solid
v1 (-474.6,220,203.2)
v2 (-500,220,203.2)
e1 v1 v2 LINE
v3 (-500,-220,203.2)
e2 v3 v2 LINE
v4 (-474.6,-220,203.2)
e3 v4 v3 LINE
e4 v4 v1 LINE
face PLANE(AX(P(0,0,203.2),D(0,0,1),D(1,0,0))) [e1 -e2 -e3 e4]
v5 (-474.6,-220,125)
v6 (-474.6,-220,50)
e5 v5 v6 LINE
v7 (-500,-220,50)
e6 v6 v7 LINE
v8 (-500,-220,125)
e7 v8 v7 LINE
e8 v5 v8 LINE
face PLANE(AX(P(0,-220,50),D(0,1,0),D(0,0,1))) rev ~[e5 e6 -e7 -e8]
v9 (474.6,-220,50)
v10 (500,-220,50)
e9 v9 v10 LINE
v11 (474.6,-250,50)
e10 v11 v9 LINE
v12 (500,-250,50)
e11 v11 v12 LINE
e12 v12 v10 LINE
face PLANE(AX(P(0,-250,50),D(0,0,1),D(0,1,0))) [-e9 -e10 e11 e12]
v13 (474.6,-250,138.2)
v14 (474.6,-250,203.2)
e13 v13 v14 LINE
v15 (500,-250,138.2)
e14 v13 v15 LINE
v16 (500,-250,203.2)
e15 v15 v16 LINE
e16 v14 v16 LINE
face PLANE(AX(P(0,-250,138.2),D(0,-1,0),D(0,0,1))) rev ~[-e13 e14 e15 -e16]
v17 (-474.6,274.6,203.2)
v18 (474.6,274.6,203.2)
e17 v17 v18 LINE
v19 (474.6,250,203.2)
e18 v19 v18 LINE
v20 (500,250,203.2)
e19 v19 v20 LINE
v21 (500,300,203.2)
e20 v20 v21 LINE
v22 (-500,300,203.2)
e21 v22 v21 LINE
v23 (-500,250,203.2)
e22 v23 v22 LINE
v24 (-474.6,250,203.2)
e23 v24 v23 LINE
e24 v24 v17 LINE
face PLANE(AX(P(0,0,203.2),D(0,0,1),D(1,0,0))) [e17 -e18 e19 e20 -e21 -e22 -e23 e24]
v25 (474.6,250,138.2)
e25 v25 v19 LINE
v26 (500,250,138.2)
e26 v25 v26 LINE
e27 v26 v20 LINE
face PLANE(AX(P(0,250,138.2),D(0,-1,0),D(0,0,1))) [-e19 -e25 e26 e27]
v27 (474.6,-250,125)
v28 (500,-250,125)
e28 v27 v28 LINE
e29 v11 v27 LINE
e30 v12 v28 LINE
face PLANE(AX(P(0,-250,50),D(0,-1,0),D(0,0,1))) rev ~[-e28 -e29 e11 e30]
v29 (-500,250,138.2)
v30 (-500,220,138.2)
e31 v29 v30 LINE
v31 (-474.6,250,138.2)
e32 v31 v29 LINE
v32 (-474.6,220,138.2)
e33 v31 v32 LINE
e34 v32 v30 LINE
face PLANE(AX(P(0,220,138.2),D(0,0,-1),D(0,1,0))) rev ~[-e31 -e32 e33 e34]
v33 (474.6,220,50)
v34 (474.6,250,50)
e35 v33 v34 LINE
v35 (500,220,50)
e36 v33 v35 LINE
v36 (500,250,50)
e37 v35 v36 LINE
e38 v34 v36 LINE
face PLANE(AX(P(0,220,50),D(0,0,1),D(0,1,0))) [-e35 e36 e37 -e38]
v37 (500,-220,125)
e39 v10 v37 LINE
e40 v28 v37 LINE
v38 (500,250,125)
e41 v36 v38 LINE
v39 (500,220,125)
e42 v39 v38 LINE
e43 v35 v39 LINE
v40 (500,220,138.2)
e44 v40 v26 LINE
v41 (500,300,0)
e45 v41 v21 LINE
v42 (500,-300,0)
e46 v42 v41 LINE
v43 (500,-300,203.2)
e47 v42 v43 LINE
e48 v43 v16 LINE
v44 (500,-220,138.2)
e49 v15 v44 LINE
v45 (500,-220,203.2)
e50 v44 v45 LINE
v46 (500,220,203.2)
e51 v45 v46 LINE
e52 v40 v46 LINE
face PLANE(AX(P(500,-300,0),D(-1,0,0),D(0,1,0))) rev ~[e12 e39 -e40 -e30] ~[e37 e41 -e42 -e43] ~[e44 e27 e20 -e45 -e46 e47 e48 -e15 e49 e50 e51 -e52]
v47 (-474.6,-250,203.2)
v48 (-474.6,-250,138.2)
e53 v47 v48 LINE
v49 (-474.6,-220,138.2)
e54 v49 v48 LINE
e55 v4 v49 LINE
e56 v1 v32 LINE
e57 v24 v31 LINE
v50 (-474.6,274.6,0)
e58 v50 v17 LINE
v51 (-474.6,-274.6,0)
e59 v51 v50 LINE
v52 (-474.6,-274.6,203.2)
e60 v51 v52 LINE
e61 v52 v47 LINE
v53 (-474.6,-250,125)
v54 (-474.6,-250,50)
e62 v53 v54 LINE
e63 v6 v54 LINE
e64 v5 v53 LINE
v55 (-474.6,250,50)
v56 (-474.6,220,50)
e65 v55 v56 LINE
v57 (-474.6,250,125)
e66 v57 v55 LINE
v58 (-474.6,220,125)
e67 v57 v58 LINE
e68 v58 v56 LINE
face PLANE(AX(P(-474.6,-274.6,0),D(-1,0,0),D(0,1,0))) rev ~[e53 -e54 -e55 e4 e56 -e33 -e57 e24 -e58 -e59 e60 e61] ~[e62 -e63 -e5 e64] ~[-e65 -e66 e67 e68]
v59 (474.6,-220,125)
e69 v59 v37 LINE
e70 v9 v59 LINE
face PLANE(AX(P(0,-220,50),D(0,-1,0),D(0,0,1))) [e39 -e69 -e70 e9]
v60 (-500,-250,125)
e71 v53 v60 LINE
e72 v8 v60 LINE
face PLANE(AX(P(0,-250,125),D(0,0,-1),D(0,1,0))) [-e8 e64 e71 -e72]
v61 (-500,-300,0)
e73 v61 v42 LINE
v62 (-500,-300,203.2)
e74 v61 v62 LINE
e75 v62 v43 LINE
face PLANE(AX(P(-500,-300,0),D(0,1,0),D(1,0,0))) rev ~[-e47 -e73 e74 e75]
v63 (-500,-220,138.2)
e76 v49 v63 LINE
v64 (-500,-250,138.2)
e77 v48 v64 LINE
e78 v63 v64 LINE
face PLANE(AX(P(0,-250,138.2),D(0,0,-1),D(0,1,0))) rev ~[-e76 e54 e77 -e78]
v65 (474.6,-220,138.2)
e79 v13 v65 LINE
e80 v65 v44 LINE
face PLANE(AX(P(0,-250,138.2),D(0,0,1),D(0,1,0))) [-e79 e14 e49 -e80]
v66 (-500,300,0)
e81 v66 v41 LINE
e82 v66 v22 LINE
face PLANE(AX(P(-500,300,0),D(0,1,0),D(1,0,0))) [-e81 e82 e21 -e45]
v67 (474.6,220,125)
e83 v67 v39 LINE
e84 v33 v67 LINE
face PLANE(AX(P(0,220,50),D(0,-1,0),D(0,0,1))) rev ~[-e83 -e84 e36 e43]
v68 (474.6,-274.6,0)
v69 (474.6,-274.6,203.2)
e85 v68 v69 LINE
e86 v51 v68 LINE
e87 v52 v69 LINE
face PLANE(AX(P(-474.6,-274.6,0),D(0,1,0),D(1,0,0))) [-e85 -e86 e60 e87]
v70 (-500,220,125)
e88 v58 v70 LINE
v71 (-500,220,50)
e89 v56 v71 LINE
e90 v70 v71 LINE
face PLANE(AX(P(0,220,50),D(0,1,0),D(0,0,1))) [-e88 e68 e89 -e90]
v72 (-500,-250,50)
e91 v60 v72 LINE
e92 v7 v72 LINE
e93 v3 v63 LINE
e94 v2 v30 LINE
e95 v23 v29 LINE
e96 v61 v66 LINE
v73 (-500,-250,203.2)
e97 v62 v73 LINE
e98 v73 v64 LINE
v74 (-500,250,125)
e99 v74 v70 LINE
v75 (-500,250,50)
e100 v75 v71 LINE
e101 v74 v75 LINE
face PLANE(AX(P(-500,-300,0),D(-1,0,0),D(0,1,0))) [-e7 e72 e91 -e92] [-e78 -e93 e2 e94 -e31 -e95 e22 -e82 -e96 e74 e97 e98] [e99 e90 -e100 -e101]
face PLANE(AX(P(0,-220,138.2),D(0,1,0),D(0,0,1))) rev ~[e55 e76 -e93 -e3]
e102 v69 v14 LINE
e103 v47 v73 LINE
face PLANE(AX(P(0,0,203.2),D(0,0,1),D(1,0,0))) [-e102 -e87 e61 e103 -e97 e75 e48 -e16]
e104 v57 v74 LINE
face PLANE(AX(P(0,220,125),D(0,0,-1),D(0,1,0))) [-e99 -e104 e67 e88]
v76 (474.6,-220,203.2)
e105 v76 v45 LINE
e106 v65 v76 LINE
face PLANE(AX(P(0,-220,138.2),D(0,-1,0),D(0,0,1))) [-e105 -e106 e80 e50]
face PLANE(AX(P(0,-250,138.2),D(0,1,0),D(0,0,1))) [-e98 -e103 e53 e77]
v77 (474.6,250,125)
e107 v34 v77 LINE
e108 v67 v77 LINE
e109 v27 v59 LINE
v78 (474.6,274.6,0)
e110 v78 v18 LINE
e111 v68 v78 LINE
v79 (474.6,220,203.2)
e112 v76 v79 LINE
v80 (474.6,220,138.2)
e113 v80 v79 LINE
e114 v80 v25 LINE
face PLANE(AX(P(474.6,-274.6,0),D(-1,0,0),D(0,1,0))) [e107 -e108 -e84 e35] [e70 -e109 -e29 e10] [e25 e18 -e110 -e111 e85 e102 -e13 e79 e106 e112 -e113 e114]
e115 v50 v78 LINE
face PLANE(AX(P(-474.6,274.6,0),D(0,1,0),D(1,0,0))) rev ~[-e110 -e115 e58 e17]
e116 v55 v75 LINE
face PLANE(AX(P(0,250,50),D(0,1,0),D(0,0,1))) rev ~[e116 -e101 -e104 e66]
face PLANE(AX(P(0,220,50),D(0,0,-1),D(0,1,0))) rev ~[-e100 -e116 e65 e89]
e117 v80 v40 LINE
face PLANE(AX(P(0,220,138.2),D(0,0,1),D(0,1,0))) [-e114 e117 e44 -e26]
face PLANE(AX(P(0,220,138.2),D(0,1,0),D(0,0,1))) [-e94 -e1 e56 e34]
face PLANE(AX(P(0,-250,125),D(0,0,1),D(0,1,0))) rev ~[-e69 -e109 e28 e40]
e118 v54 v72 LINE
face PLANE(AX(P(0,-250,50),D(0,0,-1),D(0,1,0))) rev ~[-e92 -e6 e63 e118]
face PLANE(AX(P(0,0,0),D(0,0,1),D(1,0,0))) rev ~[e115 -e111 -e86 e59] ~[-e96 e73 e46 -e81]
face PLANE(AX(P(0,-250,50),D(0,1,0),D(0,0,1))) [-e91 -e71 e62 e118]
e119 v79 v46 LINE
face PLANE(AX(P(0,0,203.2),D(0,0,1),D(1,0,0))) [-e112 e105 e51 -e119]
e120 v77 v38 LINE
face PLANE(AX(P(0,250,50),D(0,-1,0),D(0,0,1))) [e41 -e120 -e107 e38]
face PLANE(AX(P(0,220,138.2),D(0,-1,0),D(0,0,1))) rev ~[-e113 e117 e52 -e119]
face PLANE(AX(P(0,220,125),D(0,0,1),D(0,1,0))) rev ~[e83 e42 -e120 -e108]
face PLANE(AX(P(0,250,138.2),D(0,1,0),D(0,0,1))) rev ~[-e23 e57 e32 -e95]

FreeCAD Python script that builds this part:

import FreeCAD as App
import Part
import Sketcher
from FreeCAD import Vector

doc = App.newDocument("Part")
body = doc.addObject("PartDesign::Body", "Body")

# Sketch on XY plane
sketch1 = doc.addObject("Sketcher::SketchObject", "Sketch")
body.addObject(sketch1)
sketch1.AttachmentSupport = (doc.XY_Plane, [""])
sketch1.MapMode = "FlatFace"
sketch1.addGeometry([
    Part.LineSegment(Vector(-500, 300, 0), Vector(-500, -300, 0)),  # 0
    Part.LineSegment(Vector(-500, -300, 0), Vector(500, -300, 0)),  # 1
    Part.LineSegment(Vector(500, -300, 0), Vector(500, 300, 0)),  # 2
    Part.LineSegment(Vector(500, 300, 0), Vector(-500, 300, 0)),  # 3
    Part.LineSegment(Vector(474.6, -274.6, 0), Vector(-474.6, -274.6, 0)),  # 4
    Part.LineSegment(Vector(-474.6, -274.6, 0), Vector(-474.6, 274.6, 0)),  # 5
    Part.LineSegment(Vector(-474.6, 274.6, 0), Vector(474.6, 274.6, 0)),  # 6
    Part.LineSegment(Vector(474.6, 274.6, 0), Vector(474.6, -274.6, 0)),  # 7
], False)
sketch1.addConstraint([
    Sketcher.Constraint("Coincident", 0, 2, 1, 1),
    Sketcher.Constraint("Coincident", 1, 2, 2, 1),
    Sketcher.Constraint("Coincident", 2, 2, 3, 1),
    Sketcher.Constraint("Coincident", 3, 2, 0, 1),
    Sketcher.Constraint("Coincident", 4, 2, 5, 1),
    Sketcher.Constraint("Coincident", 5, 2, 6, 1),
    Sketcher.Constraint("Coincident", 6, 2, 7, 1),
    Sketcher.Constraint("Coincident", 7, 2, 4, 1),
    Sketcher.Constraint("Vertical", 0),
    Sketcher.Constraint("Horizontal", 1),
    Sketcher.Constraint("Vertical", 2),
    Sketcher.Constraint("Horizontal", 3),
    Sketcher.Constraint("Horizontal", 4),
    Sketcher.Constraint("Vertical", 5),
    Sketcher.Constraint("Horizontal", 6),
    Sketcher.Constraint("Vertical", 7),
    Sketcher.Constraint("Symmetric", 0, 2, 2, 2, -1, 1),
    Sketcher.Constraint("Symmetric", 4, 2, 6, 2, -1, 1),
    Sketcher.Constraint("DistanceX", 1, 1, 1, 2, 1000.0),
    Sketcher.Constraint("DistanceY", 0, 2, 0, 1, 600.0),
    Sketcher.Constraint("DistanceX", 4, 2, 4, 1, 949.2),
    Sketcher.Constraint("DistanceY", 5, 1, 5, 2, 549.2),
])
pad1 = doc.addObject("PartDesign::Pad", "Pad")
body.addObject(pad1)
pad1.Profile = sketch1
pad1.Length = 203.2

# Sketch on YZ plane
sketch2 = doc.addObject("Sketcher::SketchObject", "Sketch001")
body.addObject(sketch2)
sketch2.AttachmentSupport = (doc.YZ_Plane, [""])
sketch2.MapMode = "FlatFace"
sketch2.addGeometry([
    Part.LineSegment(Vector(220, 213.2, 0), Vector(220, 138.2, 0)),  # 0
    Part.LineSegment(Vector(220, 138.2, 0), Vector(250, 138.2, 0)),  # 1
    Part.LineSegment(Vector(250, 138.2, 0), Vector(250, 213.2, 0)),  # 2
    Part.LineSegment(Vector(250, 213.2, 0), Vector(220, 213.2, 0)),  # 3
    Part.LineSegment(Vector(-250, 213.2, 0), Vector(-250, 138.2, 0)),  # 4
    Part.LineSegment(Vector(-250, 138.2, 0), Vector(-220, 138.2, 0)),  # 5
    Part.LineSegment(Vector(-220, 138.2, 0), Vector(-220, 213.2, 0)),  # 6
    Part.LineSegment(Vector(-220, 213.2, 0), Vector(-250, 213.2, 0)),  # 7
    Part.LineSegment(Vector(-250, 125, 0), Vector(-250, 50, 0)),  # 8
    Part.LineSegment(Vector(-250, 50, 0), Vector(-220, 50, 0)),  # 9
    Part.LineSegment(Vector(-220, 50, 0), Vector(-220, 125, 0)),  # 10
    Part.LineSegment(Vector(-220, 125, 0), Vector(-250, 125, 0)),  # 11
    Part.LineSegment(Vector(220, 125, 0), Vector(220, 50, 0)),  # 12
    Part.LineSegment(Vector(220, 50, 0), Vector(250, 50, 0)),  # 13
    Part.LineSegment(Vector(250, 50, 0), Vector(250, 125, 0)),  # 14
    Part.LineSegment(Vector(250, 125, 0), Vector(220, 125, 0)),  # 15
], False)
sketch2.addConstraint([
    Sketcher.Constraint("Coincident", 0, 2, 1, 1),
    Sketcher.Constraint("Coincident", 1, 2, 2, 1),
    Sketcher.Constraint("Coincident", 2, 2, 3, 1),
    Sketcher.Constraint("Coincident", 3, 2, 0, 1),
    Sketcher.Constraint("Coincident", 4, 2, 5, 1),
    Sketcher.Constraint("Coincident", 5, 2, 6, 1),
    Sketcher.Constraint("Coincident", 6, 2, 7, 1),
    Sketcher.Constraint("Coincident", 7, 2, 4, 1),
    Sketcher.Constraint("Coincident", 8, 2, 9, 1),
    Sketcher.Constraint("Coincident", 9, 2, 10, 1),
    Sketcher.Constraint("Coincident", 10, 2, 11, 1),
    Sketcher.Constraint("Coincident", 11, 2, 8, 1),
    Sketcher.Constraint("Coincident", 12, 2, 13, 1),
    Sketcher.Constraint("Coincident", 13, 2, 14, 1),
    Sketcher.Constraint("Coincident", 14, 2, 15, 1),
    Sketcher.Constraint("Coincident", 15, 2, 12, 1),
    Sketcher.Constraint("Vertical", 0),
    Sketcher.Constraint("Horizontal", 1),
    Sketcher.Constraint("Vertical", 2),
    Sketcher.Constraint("Horizontal", 3),
    Sketcher.Constraint("Vertical", 4),
    Sketcher.Constraint("Horizontal", 5),
    Sketcher.Constraint("Vertical", 6),
    Sketcher.Constraint("Horizontal", 7),
    Sketcher.Constraint("Vertical", 8),
    Sketcher.Constraint("Horizontal", 9),
    Sketcher.Constraint("Vertical", 10),
    Sketcher.Constraint("Horizontal", 11),
    Sketcher.Constraint("Vertical", 12),
    Sketcher.Constraint("Horizontal", 13),
    Sketcher.Constraint("Vertical", 14),
    Sketcher.Constraint("Horizontal", 15),
    Sketcher.Constraint("Symmetric", 1, 2, 4, 2, -2),
    Sketcher.Constraint("Symmetric", 3, 2, 6, 2, -2),
    Sketcher.Constraint("Symmetric", 9, 2, 12, 2, -2),
    Sketcher.Constraint("Symmetric", 11, 2, 14, 2, -2),
    Sketcher.Constraint("Vertical", 7, 2, 8, 2),
    Sketcher.Constraint("Vertical", 6, 2, 9, 2),
    Sketcher.Constraint("Equal", 6, 8),
    Sketcher.Constraint("DistanceX", 1, 1, 1, 2, 30.0),
    Sketcher.Constraint("DistanceY", 0, 2, 0, 1, 75.0),
    Sketcher.Constraint("DistanceX", -1, 1, 0, 2, 220.0),
    Sketcher.Constraint("DistanceY", -1, 1, 8, 2, 50.0),
    Sketcher.Constraint("DistanceY", -1, 1, 0, 2, 138.2),
])
pocket1 = doc.addObject("PartDesign::Pocket", "Pocket")
body.addObject(pocket1)
pocket1.Profile = sketch2
pocket1.Type = "ThroughAll"
pocket1.Midplane = True

doc.recompute()
